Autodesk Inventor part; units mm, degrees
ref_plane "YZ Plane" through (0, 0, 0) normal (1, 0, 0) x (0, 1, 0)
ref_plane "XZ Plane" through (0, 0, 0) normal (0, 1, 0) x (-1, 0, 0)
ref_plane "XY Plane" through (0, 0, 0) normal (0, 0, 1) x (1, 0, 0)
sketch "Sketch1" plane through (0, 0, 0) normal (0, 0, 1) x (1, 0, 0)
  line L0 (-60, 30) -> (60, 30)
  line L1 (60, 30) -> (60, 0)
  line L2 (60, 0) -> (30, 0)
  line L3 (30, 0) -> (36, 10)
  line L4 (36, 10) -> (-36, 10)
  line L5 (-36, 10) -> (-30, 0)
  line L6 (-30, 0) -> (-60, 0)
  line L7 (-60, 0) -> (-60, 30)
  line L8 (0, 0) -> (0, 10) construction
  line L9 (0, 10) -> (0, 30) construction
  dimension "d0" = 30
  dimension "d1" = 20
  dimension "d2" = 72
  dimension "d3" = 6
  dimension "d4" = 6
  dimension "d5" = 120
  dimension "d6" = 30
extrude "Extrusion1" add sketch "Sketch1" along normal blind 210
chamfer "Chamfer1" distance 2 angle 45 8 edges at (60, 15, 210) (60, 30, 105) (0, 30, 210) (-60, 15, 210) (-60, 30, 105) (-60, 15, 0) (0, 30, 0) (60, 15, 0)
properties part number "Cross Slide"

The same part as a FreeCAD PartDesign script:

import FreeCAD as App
import Part
import Sketcher
from FreeCAD import Vector
Q = App.Units.Quantity


def edges_at(feature, points):
    """Names of the edges that pass closest to the given points."""
    edges = feature.Shape.Edges
    near = lambda p: min(range(len(edges)), key=lambda i: edges[i].distToShape(Part.Vertex(*p))[0])
    return sorted({f"Edge{near(p) + 1}" for p in points})

doc = App.newDocument("Part")
body = doc.addObject("PartDesign::Body", "Body")

sketch1 = body.newObject("Sketcher::SketchObject", "Sketch")
sketch1.AttachmentSupport = (doc.getObject("XY_Plane"), [""])
sketch1.MapMode = "FlatFace"
sketch1.addGeometry(Part.LineSegment(Vector(60, 30, 0), Vector(-60, 30, 0)), False)
sketch1.addGeometry(Part.LineSegment(Vector(-60, 30, 0), Vector(-60, 0, 0)), False)
sketch1.addGeometry(Part.LineSegment(Vector(-60, 0, 0), Vector(-30, 0, 0)), False)
sketch1.addGeometry(Part.LineSegment(Vector(-30, 0, 0), Vector(-36, 10, 0)), False)
sketch1.addGeometry(Part.LineSegment(Vector(-36, 10, 0), Vector(36, 10, 0)), False)
sketch1.addGeometry(Part.LineSegment(Vector(36, 10, 0), Vector(30, 0, 0)), False)
sketch1.addGeometry(Part.LineSegment(Vector(30, 0, 0), Vector(60, 0, 0)), False)
sketch1.addGeometry(Part.LineSegment(Vector(60, 0, 0), Vector(60, 30, 0)), False)
sketch1.addConstraint(Sketcher.Constraint("Coincident", 0, 2, 1, 1))
sketch1.addConstraint(Sketcher.Constraint("Coincident", 1, 2, 2, 1))
sketch1.addConstraint(Sketcher.Constraint("Coincident", 2, 2, 3, 1))
sketch1.addConstraint(Sketcher.Constraint("Coincident", 3, 2, 4, 1))
sketch1.addConstraint(Sketcher.Constraint("Coincident", 4, 2, 5, 1))
sketch1.addConstraint(Sketcher.Constraint("Coincident", 5, 2, 6, 1))
sketch1.addConstraint(Sketcher.Constraint("Coincident", 6, 2, 7, 1))
sketch1.addConstraint(Sketcher.Constraint("Coincident", 7, 2, 0, 1))
sketch1.addConstraint(Sketcher.Constraint("Horizontal", 0))
sketch1.addConstraint(Sketcher.Constraint("Vertical", 1))
sketch1.addConstraint(Sketcher.Constraint("Horizontal", 2))
sketch1.addConstraint(Sketcher.Constraint("Horizontal", 4))
sketch1.addConstraint(Sketcher.Constraint("Horizontal", 6))
sketch1.addConstraint(Sketcher.Constraint("Vertical", 7))
sketch1.addConstraint(Sketcher.Constraint("Symmetric", 2, 2, 5, 2, -1, 1))
sketch1.addConstraint(Sketcher.Constraint("Symmetric", 1, 2, 6, 2, -2))
sketch1.addConstraint(Sketcher.Constraint("Equal", 6, 1))
sketch1.addConstraint(Sketcher.Constraint("Equal", 3, 5))
sketch1.addConstraint(Sketcher.Constraint("DistanceX", 0, 2, 0, 1, Q("120 mm")))
sketch1.addConstraint(Sketcher.Constraint("DistanceX", 2, 1, 2, 2, Q("30 mm")))
sketch1.addConstraint(Sketcher.Constraint("DistanceX", 4, 1, 4, 2, Q("72 mm")))
sketch1.addConstraint(Sketcher.Constraint("DistanceY", 3, 2, 0, 2, Q("20 mm")))
pad1 = body.newObject("PartDesign::Pad", "Pad")
pad1.Profile = sketch1
pad1.Length = 210
doc.recompute()

chamfer = body.newObject("PartDesign::Chamfer", "Chamfer")
chamfer.Base = (pad1, edges_at(pad1, [
    (60, 15, 210),
    (60, 30, 105),
    (0, 30, 210),
    (-60, 15, 210),
    (-60, 30, 105),
    (-60, 15, 0),
    (0, 30, 0),
    (60, 15, 0),
]))
chamfer.Size = 2

doc.recompute()
